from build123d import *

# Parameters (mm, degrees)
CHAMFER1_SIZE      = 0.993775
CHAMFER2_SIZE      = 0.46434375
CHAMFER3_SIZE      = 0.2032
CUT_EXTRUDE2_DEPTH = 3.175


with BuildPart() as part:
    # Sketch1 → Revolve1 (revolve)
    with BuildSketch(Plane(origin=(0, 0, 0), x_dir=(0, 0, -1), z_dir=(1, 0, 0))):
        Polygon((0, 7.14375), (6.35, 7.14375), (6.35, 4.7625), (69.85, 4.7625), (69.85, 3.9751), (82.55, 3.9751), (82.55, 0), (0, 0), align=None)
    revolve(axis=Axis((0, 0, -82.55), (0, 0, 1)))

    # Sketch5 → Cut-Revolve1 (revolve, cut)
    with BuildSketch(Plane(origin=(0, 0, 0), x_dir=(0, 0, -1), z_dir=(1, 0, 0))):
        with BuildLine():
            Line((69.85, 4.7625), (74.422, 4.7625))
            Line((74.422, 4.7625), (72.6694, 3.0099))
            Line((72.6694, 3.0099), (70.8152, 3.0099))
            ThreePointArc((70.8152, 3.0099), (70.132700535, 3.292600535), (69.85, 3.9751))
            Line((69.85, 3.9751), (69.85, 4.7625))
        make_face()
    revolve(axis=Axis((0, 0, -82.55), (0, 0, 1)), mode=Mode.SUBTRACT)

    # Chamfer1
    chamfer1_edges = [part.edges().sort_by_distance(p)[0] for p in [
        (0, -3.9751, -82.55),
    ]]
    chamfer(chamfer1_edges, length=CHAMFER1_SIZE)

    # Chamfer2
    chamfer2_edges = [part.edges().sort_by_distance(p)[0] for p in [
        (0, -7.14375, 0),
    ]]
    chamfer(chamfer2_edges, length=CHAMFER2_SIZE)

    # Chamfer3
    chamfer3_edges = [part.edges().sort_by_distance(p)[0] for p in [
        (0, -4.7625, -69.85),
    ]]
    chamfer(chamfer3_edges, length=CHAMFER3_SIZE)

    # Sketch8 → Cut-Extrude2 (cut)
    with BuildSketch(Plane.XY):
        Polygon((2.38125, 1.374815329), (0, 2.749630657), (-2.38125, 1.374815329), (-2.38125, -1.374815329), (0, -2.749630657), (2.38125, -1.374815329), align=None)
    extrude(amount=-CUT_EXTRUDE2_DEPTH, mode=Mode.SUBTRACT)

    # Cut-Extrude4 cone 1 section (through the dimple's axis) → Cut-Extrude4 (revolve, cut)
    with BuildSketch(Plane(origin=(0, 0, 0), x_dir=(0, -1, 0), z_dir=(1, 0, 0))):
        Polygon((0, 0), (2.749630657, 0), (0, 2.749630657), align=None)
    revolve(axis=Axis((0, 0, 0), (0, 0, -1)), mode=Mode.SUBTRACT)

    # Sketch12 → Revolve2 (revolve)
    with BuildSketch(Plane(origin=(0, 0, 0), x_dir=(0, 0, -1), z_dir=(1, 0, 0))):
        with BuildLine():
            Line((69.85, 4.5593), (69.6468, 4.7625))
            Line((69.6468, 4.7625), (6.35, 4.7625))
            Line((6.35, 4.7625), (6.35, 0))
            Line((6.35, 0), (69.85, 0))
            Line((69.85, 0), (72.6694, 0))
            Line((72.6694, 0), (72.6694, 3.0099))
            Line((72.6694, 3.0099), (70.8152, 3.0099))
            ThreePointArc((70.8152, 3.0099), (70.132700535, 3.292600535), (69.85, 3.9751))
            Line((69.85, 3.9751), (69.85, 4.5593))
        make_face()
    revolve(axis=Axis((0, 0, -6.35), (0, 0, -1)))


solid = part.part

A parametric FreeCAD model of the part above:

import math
import FreeCAD as App
import Part
import Sketcher
Q = App.Units.Quantity


def edges_at(feature, points):
    """Names of the edges that pass closest to the given points."""
    edges = feature.Shape.Edges
    near = lambda p: min(range(len(edges)), key=lambda i: edges[i].distToShape(Part.Vertex(*p))[0])
    return sorted({f"Edge{near(p) + 1}" for p in points})

doc = App.newDocument("Part")
body = doc.addObject("PartDesign::Body", "Body")

# Sketch on YZ plane
sketch1 = doc.addObject("Sketcher::SketchObject", "Sketch")
body.addObject(sketch1)
sketch1.AttachmentSupport = (doc.YZ_Plane, [""])
sketch1.MapMode = "FlatFace"
sketch1.addGeometry([
    Part.LineSegment(App.Vector(7.1, -6.3, 0), App.Vector(7.1, 0, 0)),  # 0
    Part.LineSegment(App.Vector(7.1, 0, 0), App.Vector(0, 0, 0)),  # 1
    Part.LineSegment(App.Vector(0, 0, 0), App.Vector(0, -82.5, 0)),  # 2
    Part.LineSegment(App.Vector(0, -82.5, 0), App.Vector(4, -82.5, 0)),  # 3
    Part.LineSegment(App.Vector(4, -82.5, 0), App.Vector(4, -69.8, 0)),  # 4
    Part.LineSegment(App.Vector(4, -69.8, 0), App.Vector(4.8, -69.8, 0)),  # 5
    Part.LineSegment(App.Vector(4.8, -69.8, 0), App.Vector(4.8, -6.3, 0)),  # 6
    Part.LineSegment(App.Vector(4.8, -6.3, 0), App.Vector(7.1, -6.3, 0)),  # 7
], False)
sketch1.addConstraint([
    Sketcher.Constraint("Coincident", 0, 2, 1, 1),
    Sketcher.Constraint("Coincident", 1, 2, 2, 1),
    Sketcher.Constraint("Coincident", 2, 2, 3, 1),
    Sketcher.Constraint("Coincident", 3, 2, 4, 1),
    Sketcher.Constraint("Coincident", 4, 2, 5, 1),
    Sketcher.Constraint("Coincident", 5, 2, 6, 1),
    Sketcher.Constraint("Coincident", 6, 2, 7, 1),
    Sketcher.Constraint("Coincident", 7, 2, 0, 1),
    Sketcher.Constraint("Vertical", 0),
    Sketcher.Constraint("Horizontal", 1),
    Sketcher.Constraint("Vertical", 2),
    Sketcher.Constraint("Horizontal", 3),
    Sketcher.Constraint("Vertical", 4),
    Sketcher.Constraint("Horizontal", 5),
    Sketcher.Constraint("Vertical", 6),
    Sketcher.Constraint("Horizontal", 7),
    Sketcher.Constraint("Coincident", 1, 2, -1, 1),
    Sketcher.Constraint("DistanceY", 4, 1, 4, 2, Q("0.5 in")),
    Sketcher.Constraint("DistanceY", 6, 1, 6, 2, Q("2.5 in")),
    Sketcher.Constraint("DistanceY", 0, 1, 0, 2, Q("0.25 in")),
    Sketcher.Constraint("DistanceX", 1, 2, 1, 1, Q("0.28125 in")),
    Sketcher.Constraint("DistanceX", 5, 1, 5, 2, Q("0.031 in")),
    Sketcher.Constraint("DistanceX", 7, 1, 7, 2, Q("0.09375 in")),
])
revolution = doc.addObject("PartDesign::Revolution", "Revolution")
body.addObject(revolution)
revolution.Profile = sketch1
revolution.ReferenceAxis = (sketch1, ["V_Axis"])
revolution.Angle = 360

# Sketch on YZ plane
sketch2 = doc.addObject("Sketcher::SketchObject", "Sketch001")
body.addObject(sketch2)
sketch2.AttachmentSupport = (doc.YZ_Plane, [""])
sketch2.MapMode = "FlatFace"
sketch2.addGeometry([
    Part.LineSegment(App.Vector(4.8, -74.4, 0), App.Vector(4.8, -69.8, 0)),  # 0
    Part.LineSegment(App.Vector(4.8, -69.8, 0), App.Vector(4, -69.8, 0)),  # 1
    Part.ArcOfCircle(Part.Circle(App.Vector(4, -70.8, 0), App.Vector(0, 0, 1), 1), math.radians(90), math.radians(180)),  # 2
    Part.LineSegment(App.Vector(3, -70.8, 0), App.Vector(3, -72.7, 0)),  # 3
    Part.LineSegment(App.Vector(3, -72.7, 0), App.Vector(4.8, -74.4, 0)),  # 4
], False)
sketch2.addConstraint([
    Sketcher.Constraint("Coincident", 0, 2, 1, 1),
    Sketcher.Constraint("Tangent", 1, 2, 2, 1),
    Sketcher.Constraint("Tangent", 2, 2, 3, 1),
    Sketcher.Constraint("Coincident", 3, 2, 4, 1),
    Sketcher.Constraint("Coincident", 4, 2, 0, 1),
    Sketcher.Constraint("Vertical", 0),
    Sketcher.Constraint("Horizontal", 1),
    Sketcher.Constraint("Vertical", 3),
    Sketcher.Constraint("Angle", 4, Q("-45 deg")),
    Sketcher.Constraint("Radius", 2, Q("0.038 in")),
    Sketcher.Constraint("DistanceY", 0, 1, 0, 2, Q("0.18 in")),
    Sketcher.Constraint("DistanceX", 1, 2, 1, 1, Q("0.031 in")),
    Sketcher.Constraint("DistanceY", 0, 2, -1, 1, Q("2.75 in")),
    Sketcher.Constraint("DistanceX", -1, 1, 0, 2, Q("0.1875 in")),
])
groove = doc.addObject("PartDesign::Groove", "Groove")
body.addObject(groove)
groove.Profile = sketch2
groove.ReferenceAxis = (sketch2, ["V_Axis"])
groove.Angle = 360
doc.recompute()

chamfer = doc.addObject("PartDesign::Chamfer", "Chamfer")
body.addObject(chamfer)
chamfer.Base = (groove, edges_at(groove, [(0, -3.975, -82.55)]))
chamfer.Size = 0.993775
doc.recompute()

chamfer2 = doc.addObject("PartDesign::Chamfer", "Chamfer001")
body.addObject(chamfer2)
chamfer2.Base = (chamfer, edges_at(chamfer, [(0, -7.144, 0)]))
chamfer2.Size = 0.464344
doc.recompute()

chamfer3 = doc.addObject("PartDesign::Chamfer", "Chamfer002")
body.addObject(chamfer3)
chamfer3.Base = (chamfer2, edges_at(chamfer2, [(0, -4.763, -69.85)]))
chamfer3.Size = Q("0.008 in")

# Sketch on XY plane
sketch3 = doc.addObject("Sketcher::SketchObject", "Sketch002")
body.addObject(sketch3)
sketch3.AttachmentSupport = (doc.XY_Plane, [""])
sketch3.MapMode = "FlatFace"
sketch3.addGeometry([
    Part.LineSegment(App.Vector(2.4, 1.4, 0), App.Vector(0, 2.7, 0)),  # 0
    Part.LineSegment(App.Vector(0, 2.7, 0), App.Vector(-2.4, 1.4, 0)),  # 1
    Part.LineSegment(App.Vector(-2.4, 1.4, 0), App.Vector(-2.4, -1.4, 0)),  # 2
    Part.LineSegment(App.Vector(-2.4, -1.4, 0), App.Vector(0, -2.7, 0)),  # 3
    Part.LineSegment(App.Vector(0, -2.7, 0), App.Vector(2.4, -1.4, 0)),  # 4
    Part.LineSegment(App.Vector(2.4, -1.4, 0), App.Vector(2.4, 1.4, 0)),  # 5
], False)
sketch3.addConstraint([
    Sketcher.Constraint("Coincident", 0, 2, 1, 1),
    Sketcher.Constraint("Coincident", 1, 2, 2, 1),
    Sketcher.Constraint("Coincident", 2, 2, 3, 1),
    Sketcher.Constraint("Coincident", 3, 2, 4, 1),
    Sketcher.Constraint("Coincident", 4, 2, 5, 1),
    Sketcher.Constraint("Coincident", 5, 2, 0, 1),
    Sketcher.Constraint("Vertical", 2),
    Sketcher.Constraint("Vertical", 5),
    Sketcher.Constraint("Symmetric", 0, 2, 3, 2, -1, 1),
    Sketcher.Constraint("Symmetric", 1, 2, 4, 2, -1, 1),
    Sketcher.Constraint("PointOnObject", 0, 2, -2),
    Sketcher.Constraint("Parallel", 0, 3),
    Sketcher.Constraint("Horizontal", 2, 2, 4, 2),
    Sketcher.Constraint("Angle", 0, Q("150 deg")),
    Sketcher.Constraint("DistanceX", 1, 2, -1, 1, Q("0.09375 in")),
    Sketcher.Constraint("DistanceY", 2, 2, 2, 1, Q("2.749631 mm")),
])
pocket1 = doc.addObject("PartDesign::Pocket", "Pocket")
body.addObject(pocket1)
pocket1.Profile = sketch3
pocket1.Length = Q("0.125 in")

# Sketch on YZ plane
sketch4 = doc.addObject("Sketcher::SketchObject", "Sketch003")
body.addObject(sketch4)
sketch4.AttachmentSupport = (doc.YZ_Plane, [""])
sketch4.MapMode = "FlatFace"
sketch4.addGeometry([
    Part.LineSegment(App.Vector(0, 0, 0), App.Vector(-2.7, 0, 0)),
    Part.LineSegment(App.Vector(-2.7, 0, 0), App.Vector(0, -2.7, 0)),
    Part.LineSegment(App.Vector(0, -2.7, 0), App.Vector(0, 0, 0)),
], False)
sketch4.addConstraint([
    Sketcher.Constraint("Coincident", 0, 2, 1, 1),
    Sketcher.Constraint("Coincident", 1, 2, 2, 1),
    Sketcher.Constraint("Coincident", 2, 2, 0, 1),
    Sketcher.Constraint("Horizontal", 0),
    Sketcher.Constraint("Vertical", 2),
    Sketcher.Constraint("Coincident", 2, 2, -1, 1),
    Sketcher.Constraint("Equal", 0, 2),
    Sketcher.Constraint("DistanceX", 0, 2, 0, 1, Q("2.749631 mm")),
])
groove2 = doc.addObject("PartDesign::Groove", "Groove001")
body.addObject(groove2)
groove2.Profile = sketch4
groove2.ReferenceAxis = (sketch4, ["V_Axis"])
groove2.Angle = 360

# Sketch on YZ plane
sketch5 = doc.addObject("Sketcher::SketchObject", "Sketch004")
body.addObject(sketch5)
sketch5.AttachmentSupport = (doc.YZ_Plane, [""])
sketch5.MapMode = "FlatFace"
sketch5.addGeometry([
    Part.LineSegment(App.Vector(4.56, -69.85, 0), App.Vector(4.76, -69.65, 0)),  # 0
    Part.LineSegment(App.Vector(4.76, -69.65, 0), App.Vector(4.76, -6.35, 0)),  # 1
    Part.LineSegment(App.Vector(4.76, -6.35, 0), App.Vector(0, -6.35, 0)),  # 2
    Part.LineSegment(App.Vector(0, -6.35, 0), App.Vector(0, -72.67, 0)),  # 3
    Part.LineSegment(App.Vector(0, -72.67, 0), App.Vector(3.01, -72.67, 0)),  # 4
    Part.LineSegment(App.Vector(3.01, -72.67, 0), App.Vector(3.01, -70.82, 0)),  # 5
    Part.ArcOfCircle(Part.Circle(App.Vector(3.98, -70.82, 0), App.Vector(0, 0, 1), 0.97), math.radians(90), math.radians(180)),  # 6
    Part.LineSegment(App.Vector(3.98, -69.85, 0), App.Vector(4.56, -69.85, 0)),  # 7
], False)
sketch5.addConstraint([
    Sketcher.Constraint("Coincident", 0, 2, 1, 1),
    Sketcher.Constraint("Coincident", 1, 2, 2, 1),
    Sketcher.Constraint("Coincident", 2, 2, 3, 1),
    Sketcher.Constraint("Coincident", 3, 2, 4, 1),
    Sketcher.Constraint("Coincident", 4, 2, 5, 1),
    Sketcher.Constraint("Tangent", 5, 2, 6, 2),
    Sketcher.Constraint("Tangent", 6, 1, 7, 1),
    Sketcher.Constraint("Coincident", 7, 2, 0, 1),
    Sketcher.Constraint("Vertical", 1),
    Sketcher.Constraint("Horizontal", 2),
    Sketcher.Constraint("Vertical", 3),
    Sketcher.Constraint("Horizontal", 4),
    Sketcher.Constraint("Vertical", 5),
    Sketcher.Constraint("Horizontal", 7),
    Sketcher.Constraint("PointOnObject", 2, 2, -2),
    Sketcher.Constraint("Angle", 0, Q("45 deg")),
    Sketcher.Constraint("Radius", 6, Q("0.038 in")),
    Sketcher.Constraint("DistanceX", 2, 2, 2, 1, Q("0.1875 in")),
    Sketcher.Constraint("DistanceX", 7, 1, 7, 2, Q("0.023 in")),
    Sketcher.Constraint("DistanceY", 1, 1, 1, 2, Q("2.492 in")),
    Sketcher.Constraint("DistanceY", 3, 2, 3, 1, Q("2.611 in")),
    Sketcher.Constraint("DistanceY", 5, 1, 5, 2, Q("0.073 in")),
    Sketcher.Constraint("DistanceY", 1, 2, -1, 1, Q("0.25 in")),
])
revolution2 = doc.addObject("PartDesign::Revolution", "Revolution001")
body.addObject(revolution2)
revolution2.Profile = sketch5
revolution2.ReferenceAxis = (sketch5, ["V_Axis"])
revolution2.Angle = 360

doc.recompute()
